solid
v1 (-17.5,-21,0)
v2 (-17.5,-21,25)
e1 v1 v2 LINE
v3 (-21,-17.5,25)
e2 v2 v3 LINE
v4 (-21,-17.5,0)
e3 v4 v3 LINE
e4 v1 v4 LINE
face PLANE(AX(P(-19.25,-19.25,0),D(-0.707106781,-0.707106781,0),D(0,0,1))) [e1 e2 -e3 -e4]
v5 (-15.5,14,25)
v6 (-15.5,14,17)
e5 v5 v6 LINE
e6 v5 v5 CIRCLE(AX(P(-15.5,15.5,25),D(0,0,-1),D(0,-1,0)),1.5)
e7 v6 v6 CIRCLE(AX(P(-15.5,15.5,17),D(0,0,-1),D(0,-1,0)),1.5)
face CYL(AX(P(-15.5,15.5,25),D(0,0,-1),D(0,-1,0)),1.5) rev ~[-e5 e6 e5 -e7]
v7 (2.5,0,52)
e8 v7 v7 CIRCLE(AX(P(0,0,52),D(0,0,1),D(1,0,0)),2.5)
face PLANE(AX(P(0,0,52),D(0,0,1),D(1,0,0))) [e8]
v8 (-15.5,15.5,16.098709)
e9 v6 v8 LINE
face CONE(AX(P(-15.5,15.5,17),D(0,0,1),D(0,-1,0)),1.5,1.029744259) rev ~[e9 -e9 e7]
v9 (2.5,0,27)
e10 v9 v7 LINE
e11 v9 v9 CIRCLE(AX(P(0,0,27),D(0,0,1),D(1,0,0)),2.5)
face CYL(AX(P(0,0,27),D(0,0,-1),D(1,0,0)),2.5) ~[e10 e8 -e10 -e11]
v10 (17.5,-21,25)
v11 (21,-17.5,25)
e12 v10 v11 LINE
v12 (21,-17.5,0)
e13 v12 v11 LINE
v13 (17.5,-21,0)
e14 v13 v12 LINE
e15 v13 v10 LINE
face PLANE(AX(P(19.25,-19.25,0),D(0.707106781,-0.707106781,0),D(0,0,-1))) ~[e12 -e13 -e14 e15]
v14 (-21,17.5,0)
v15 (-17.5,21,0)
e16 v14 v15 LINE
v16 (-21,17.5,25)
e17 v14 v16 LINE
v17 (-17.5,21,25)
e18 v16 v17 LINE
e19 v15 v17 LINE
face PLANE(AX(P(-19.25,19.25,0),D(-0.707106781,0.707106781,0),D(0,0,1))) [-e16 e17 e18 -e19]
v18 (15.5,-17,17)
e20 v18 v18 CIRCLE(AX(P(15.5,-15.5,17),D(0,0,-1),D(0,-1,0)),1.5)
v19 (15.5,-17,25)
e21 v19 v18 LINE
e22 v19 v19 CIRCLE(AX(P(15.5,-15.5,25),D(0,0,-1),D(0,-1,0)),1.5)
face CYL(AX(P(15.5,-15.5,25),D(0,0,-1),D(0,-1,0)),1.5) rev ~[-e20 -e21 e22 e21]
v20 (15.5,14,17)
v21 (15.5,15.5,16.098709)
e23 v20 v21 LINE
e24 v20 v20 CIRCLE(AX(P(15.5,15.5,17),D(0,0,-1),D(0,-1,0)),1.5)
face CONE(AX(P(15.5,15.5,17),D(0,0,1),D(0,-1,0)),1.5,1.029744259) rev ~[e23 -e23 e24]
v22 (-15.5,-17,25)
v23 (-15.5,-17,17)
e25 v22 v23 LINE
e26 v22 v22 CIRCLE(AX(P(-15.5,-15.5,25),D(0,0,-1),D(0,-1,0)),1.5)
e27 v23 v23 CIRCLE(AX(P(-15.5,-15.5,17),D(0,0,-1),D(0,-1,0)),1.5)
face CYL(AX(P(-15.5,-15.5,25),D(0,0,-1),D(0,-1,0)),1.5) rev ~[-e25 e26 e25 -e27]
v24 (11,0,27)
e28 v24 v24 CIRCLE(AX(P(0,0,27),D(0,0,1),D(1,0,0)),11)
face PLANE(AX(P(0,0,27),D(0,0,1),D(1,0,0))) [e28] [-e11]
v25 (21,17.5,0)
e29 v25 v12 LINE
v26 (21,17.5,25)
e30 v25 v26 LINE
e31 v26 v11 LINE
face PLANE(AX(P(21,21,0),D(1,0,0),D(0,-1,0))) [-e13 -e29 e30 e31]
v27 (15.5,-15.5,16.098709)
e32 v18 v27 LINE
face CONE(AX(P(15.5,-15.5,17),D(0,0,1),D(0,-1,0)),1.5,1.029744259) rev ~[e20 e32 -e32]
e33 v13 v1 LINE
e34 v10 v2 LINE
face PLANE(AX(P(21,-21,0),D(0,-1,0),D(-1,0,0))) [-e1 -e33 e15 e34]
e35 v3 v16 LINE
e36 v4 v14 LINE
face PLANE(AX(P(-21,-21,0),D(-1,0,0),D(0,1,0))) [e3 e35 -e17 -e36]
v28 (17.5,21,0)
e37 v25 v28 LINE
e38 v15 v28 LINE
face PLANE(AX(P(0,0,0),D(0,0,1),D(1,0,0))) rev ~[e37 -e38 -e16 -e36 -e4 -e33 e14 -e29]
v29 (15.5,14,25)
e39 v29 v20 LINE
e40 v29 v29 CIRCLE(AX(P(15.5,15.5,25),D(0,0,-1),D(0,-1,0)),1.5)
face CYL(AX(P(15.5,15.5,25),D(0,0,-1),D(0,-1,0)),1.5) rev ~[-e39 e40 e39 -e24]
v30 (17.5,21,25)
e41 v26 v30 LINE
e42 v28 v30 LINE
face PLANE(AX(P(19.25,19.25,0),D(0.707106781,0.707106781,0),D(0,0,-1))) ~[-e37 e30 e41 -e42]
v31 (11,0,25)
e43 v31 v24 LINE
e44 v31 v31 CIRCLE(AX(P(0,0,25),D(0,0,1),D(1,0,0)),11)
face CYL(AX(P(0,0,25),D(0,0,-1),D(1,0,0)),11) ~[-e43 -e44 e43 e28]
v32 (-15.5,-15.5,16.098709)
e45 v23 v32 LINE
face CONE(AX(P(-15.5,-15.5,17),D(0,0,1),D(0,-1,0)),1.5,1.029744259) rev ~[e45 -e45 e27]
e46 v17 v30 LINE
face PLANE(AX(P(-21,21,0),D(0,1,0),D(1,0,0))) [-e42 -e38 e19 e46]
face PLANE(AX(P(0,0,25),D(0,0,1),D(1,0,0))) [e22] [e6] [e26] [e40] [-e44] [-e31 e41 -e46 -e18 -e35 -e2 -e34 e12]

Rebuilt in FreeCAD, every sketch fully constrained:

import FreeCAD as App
import Part
import Sketcher
Q = App.Units.Quantity


def edges_at(feature, points):
    """Names of the edges that pass closest to the given points."""
    edges = feature.Shape.Edges
    near = lambda p: min(range(len(edges)), key=lambda i: edges[i].distToShape(Part.Vertex(*p))[0])
    return sorted({f"Edge{near(p) + 1}" for p in points})

doc = App.newDocument("Part")
body = doc.addObject("PartDesign::Body", "Body")

sketch1 = body.newObject("Sketcher::SketchObject", "Sketch")
sketch1.AttachmentSupport = (doc.getObject("XY_Plane"), [""])
sketch1.MapMode = "FlatFace"
sketch1.addGeometry(Part.LineSegment(App.Vector(-21, -21, 0), App.Vector(21, -21, 0)), False)
sketch1.addGeometry(Part.LineSegment(App.Vector(21, -21, 0), App.Vector(21, 21, 0)), False)
sketch1.addGeometry(Part.LineSegment(App.Vector(21, 21, 0), App.Vector(-21, 21, 0)), False)
sketch1.addGeometry(Part.LineSegment(App.Vector(-21, 21, 0), App.Vector(-21, -21, 0)), False)
sketch1.addConstraint(Sketcher.Constraint("Coincident", 0, 2, 1, 1))
sketch1.addConstraint(Sketcher.Constraint("Coincident", 1, 2, 2, 1))
sketch1.addConstraint(Sketcher.Constraint("Coincident", 2, 2, 3, 1))
sketch1.addConstraint(Sketcher.Constraint("Coincident", 3, 2, 0, 1))
sketch1.addConstraint(Sketcher.Constraint("Horizontal", 0))
sketch1.addConstraint(Sketcher.Constraint("Vertical", 1))
sketch1.addConstraint(Sketcher.Constraint("Horizontal", 2))
sketch1.addConstraint(Sketcher.Constraint("Vertical", 3))
sketch1.addConstraint(Sketcher.Constraint("Symmetric", 0, 2, 2, 2, -1, 1))
sketch1.addConstraint(Sketcher.Constraint("Equal", 2, 1))
sketch1.addConstraint(Sketcher.Constraint("DistanceX", 0, 1, 0, 2, Q("42 mm")))
pad1 = body.newObject("PartDesign::Pad", "Pad")
pad1.Profile = sketch1
pad1.Length = 25

sketch2 = body.newObject("Sketcher::SketchObject", "Sketch001")
sketch2.AttachmentSupport = (doc.getObject("XY_Plane"), [""])
sketch2.MapMode = "FlatFace"
sketch2.AttachmentOffset = App.Placement(App.Vector(0, 0, 25), App.Rotation())
sketch2.addGeometry(Part.Circle(App.Vector(-15.5, 15.5, 0), App.Vector(0, 0, 1), 1.5), False)
sketch2.addGeometry(Part.Circle(App.Vector(-15.5, -15.5, 0), App.Vector(0, 0, 1), 1.5), False)
sketch2.addGeometry(Part.Circle(App.Vector(15.5, -15.5, 0), App.Vector(0, 0, 1), 1.5), False)
sketch2.addGeometry(Part.Circle(App.Vector(15.5, 15.5, 0), App.Vector(0, 0, 1), 1.5), False)
sketch2.addConstraint(Sketcher.Constraint("Equal", 0, 1))
sketch2.addConstraint(Sketcher.Constraint("Equal", 1, 2))
sketch2.addConstraint(Sketcher.Constraint("Equal", 2, 3))
sketch2.addConstraint(Sketcher.Constraint("Symmetric", 0, 3, 2, 3, -1, 1))
sketch2.addConstraint(Sketcher.Constraint("Symmetric", 1, 3, 3, 3, -1, 1))
sketch2.addConstraint(Sketcher.Constraint("Symmetric", 1, 3, 2, 3, -2))
sketch2.addConstraint(Sketcher.Constraint("Diameter", 0, Q("3 mm")))
sketch2.addConstraint(Sketcher.Constraint("DistanceY", 1, 3, 0, 3, Q("31 mm")))
sketch2.addConstraint(Sketcher.Constraint("DistanceX", 1, 3, 2, 3, Q("31 mm")))
doc.recompute()
hole = body.newObject("PartDesign::Hole", "Hole")
hole.Profile = sketch2
hole.ThreadType = "None"
hole.Diameter = 3
hole.DepthType = "Dimension"
hole.Depth = 8
hole.DrillPoint = "Angled"
hole.DrillPointAngle = 118
doc.recompute()

chamfer = body.newObject("PartDesign::Chamfer", "Chamfer")
chamfer.Base = (hole, edges_at(hole, [
    (21, 21, 12.5),
    (21, -21, 12.5),
    (-21, 21, 12.5),
    (-21, -21, 12.5),
]))
chamfer.Size = 3.5

sketch3 = body.newObject("Sketcher::SketchObject", "Sketch002")
sketch3.AttachmentSupport = (doc.getObject("XY_Plane"), [""])
sketch3.MapMode = "FlatFace"
sketch3.AttachmentOffset = App.Placement(App.Vector(0, 0, 25), App.Rotation())
sketch3.addGeometry(Part.Circle(App.Vector(0, 0, 0), App.Vector(0, 0, 1), 11), False)
sketch3.addConstraint(Sketcher.Constraint("Coincident", 0, 3, -1, 1))
sketch3.addConstraint(Sketcher.Constraint("Diameter", 0, Q("22 mm")))
pad2 = body.newObject("PartDesign::Pad", "Pad001")
pad2.Profile = sketch3
pad2.Length = 2

sketch4 = body.newObject("Sketcher::SketchObject", "Sketch003")
sketch4.AttachmentSupport = (doc.getObject("XY_Plane"), [""])
sketch4.MapMode = "FlatFace"
sketch4.AttachmentOffset = App.Placement(App.Vector(0, 0, 27), App.Rotation())
sketch4.addGeometry(Part.Circle(App.Vector(0, 0, 0), App.Vector(0, 0, 1), 2.5), False)
sketch4.addConstraint(Sketcher.Constraint("Coincident", 0, 3, -1, 1))
sketch4.addConstraint(Sketcher.Constraint("Diameter", 0, Q("5 mm")))
pad3 = body.newObject("PartDesign::Pad", "Pad002")
pad3.Profile = sketch4
pad3.Length = 25

doc.recompute()
